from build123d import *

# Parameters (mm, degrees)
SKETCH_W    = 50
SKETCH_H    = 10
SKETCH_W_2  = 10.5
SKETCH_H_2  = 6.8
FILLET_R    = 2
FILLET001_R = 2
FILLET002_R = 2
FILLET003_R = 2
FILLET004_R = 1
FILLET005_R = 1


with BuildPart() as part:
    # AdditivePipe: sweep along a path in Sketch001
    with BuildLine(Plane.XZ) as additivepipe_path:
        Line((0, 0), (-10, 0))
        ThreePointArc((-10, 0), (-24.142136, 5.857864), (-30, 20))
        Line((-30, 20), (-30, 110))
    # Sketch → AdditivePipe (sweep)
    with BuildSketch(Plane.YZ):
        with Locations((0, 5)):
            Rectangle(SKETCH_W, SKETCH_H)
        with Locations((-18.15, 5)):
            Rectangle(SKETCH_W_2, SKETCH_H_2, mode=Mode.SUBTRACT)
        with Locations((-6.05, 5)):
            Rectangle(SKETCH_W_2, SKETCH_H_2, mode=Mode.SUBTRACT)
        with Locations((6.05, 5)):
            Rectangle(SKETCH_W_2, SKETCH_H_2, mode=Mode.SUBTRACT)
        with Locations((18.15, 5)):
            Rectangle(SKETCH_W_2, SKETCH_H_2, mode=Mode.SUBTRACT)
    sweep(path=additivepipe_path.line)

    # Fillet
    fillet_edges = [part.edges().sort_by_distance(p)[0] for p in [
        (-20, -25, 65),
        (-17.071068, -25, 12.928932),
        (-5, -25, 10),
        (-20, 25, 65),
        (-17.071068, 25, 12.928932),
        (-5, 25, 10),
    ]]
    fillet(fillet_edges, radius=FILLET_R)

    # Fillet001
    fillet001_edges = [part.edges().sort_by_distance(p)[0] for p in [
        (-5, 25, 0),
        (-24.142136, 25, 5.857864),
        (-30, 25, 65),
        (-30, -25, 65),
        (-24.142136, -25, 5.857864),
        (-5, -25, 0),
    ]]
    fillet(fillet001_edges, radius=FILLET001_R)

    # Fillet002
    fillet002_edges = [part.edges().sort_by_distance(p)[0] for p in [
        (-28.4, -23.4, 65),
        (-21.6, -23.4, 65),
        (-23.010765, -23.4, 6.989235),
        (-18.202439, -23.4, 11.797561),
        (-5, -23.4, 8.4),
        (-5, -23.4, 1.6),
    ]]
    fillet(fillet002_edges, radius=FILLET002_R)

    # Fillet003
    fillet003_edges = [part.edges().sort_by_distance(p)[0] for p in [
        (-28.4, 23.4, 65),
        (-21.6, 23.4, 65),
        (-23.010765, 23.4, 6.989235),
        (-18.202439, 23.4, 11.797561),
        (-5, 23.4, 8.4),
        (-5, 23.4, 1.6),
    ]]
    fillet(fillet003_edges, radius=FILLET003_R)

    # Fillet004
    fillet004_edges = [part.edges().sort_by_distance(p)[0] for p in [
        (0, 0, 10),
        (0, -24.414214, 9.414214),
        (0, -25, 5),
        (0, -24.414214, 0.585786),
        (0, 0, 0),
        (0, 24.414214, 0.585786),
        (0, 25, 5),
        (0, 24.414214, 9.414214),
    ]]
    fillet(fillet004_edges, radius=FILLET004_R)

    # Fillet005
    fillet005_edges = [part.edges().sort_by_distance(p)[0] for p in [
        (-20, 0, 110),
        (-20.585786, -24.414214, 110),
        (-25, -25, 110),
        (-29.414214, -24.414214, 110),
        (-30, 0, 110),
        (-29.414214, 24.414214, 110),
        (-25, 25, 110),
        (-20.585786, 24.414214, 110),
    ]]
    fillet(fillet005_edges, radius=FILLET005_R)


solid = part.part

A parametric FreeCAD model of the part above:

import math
import FreeCAD as App
import Part
import Sketcher
from FreeCAD import Vector


def edges_at(feature, points):
    """Names of the edges that pass closest to the given points."""
    edges = feature.Shape.Edges
    near = lambda p: min(range(len(edges)), key=lambda i: edges[i].distToShape(Part.Vertex(*p))[0])
    return sorted({f"Edge{near(p) + 1}" for p in points})


def add_polygon(sketch, points):
    """Adds a closed chain of lines whose ends are joined by coincident constraints."""
    first, n = sketch.GeometryCount, len(points)
    for a, b in zip(points, points[1:] + points[:1]):
        sketch.addGeometry(Part.LineSegment(App.Vector(*a, 0), App.Vector(*b, 0)), False)
    for i in range(n):
        sketch.addConstraint(Sketcher.Constraint("Coincident", first + i, 2, first + (i + 1) % n, 1))

doc = App.newDocument("Part")
body = doc.addObject("PartDesign::Body", "Body")

sketch1 = body.newObject("Sketcher::SketchObject", "Sketch")
sketch1.AttachmentSupport = (doc.getObject("YZ_Plane"), [""])
sketch1.MapMode = "FlatFace"
add_polygon(sketch1, [(-25, 10), (-25, 0), (25, 0), (25, 10)])
add_polygon(sketch1, [(-12.9, 1.6), (-23.4, 1.6), (-23.4, 8.4), (-12.9, 8.4)])
add_polygon(sketch1, [(-0.8, 1.6), (-11.3, 1.6), (-11.3, 8.4), (-0.8, 8.4)])
add_polygon(sketch1, [(11.3, 1.6), (0.8, 1.6), (0.8, 8.4), (11.3, 8.4)])
add_polygon(sketch1, [(23.4, 1.6), (12.9, 1.6), (12.9, 8.4), (23.4, 8.4)])
sketch1.addConstraint([
    Sketcher.Constraint("Vertical", 0),
    Sketcher.Constraint("Horizontal", 1),
    Sketcher.Constraint("Vertical", 2),
    Sketcher.Constraint("Horizontal", 3),
    Sketcher.Constraint("Horizontal", 4),
    Sketcher.Constraint("Vertical", 5),
    Sketcher.Constraint("Horizontal", 6),
    Sketcher.Constraint("Vertical", 7),
    Sketcher.Constraint("Horizontal", 8),
    Sketcher.Constraint("Vertical", 9),
    Sketcher.Constraint("Horizontal", 10),
    Sketcher.Constraint("Vertical", 11),
    Sketcher.Constraint("Horizontal", 12),
    Sketcher.Constraint("Vertical", 13),
    Sketcher.Constraint("Horizontal", 14),
    Sketcher.Constraint("Vertical", 15),
    Sketcher.Constraint("Horizontal", 16),
    Sketcher.Constraint("Vertical", 17),
    Sketcher.Constraint("Horizontal", 18),
    Sketcher.Constraint("Vertical", 19),
    Sketcher.Constraint("Symmetric", 0, 2, 1, 2, -1, 1),
    Sketcher.Constraint("Symmetric", 11, 2, 12, 2, -2),
    Sketcher.Constraint("Symmetric", 9, 2, 14, 2, -2),
    Sketcher.Constraint("Symmetric", 7, 2, 16, 2, -2),
    Sketcher.Constraint("Symmetric", 5, 2, 18, 2, -2),
    Sketcher.Constraint("Horizontal", 7, 2, 8, 2),
    Sketcher.Constraint("Horizontal", 6, 2, 9, 2),
    Sketcher.Constraint("Equal", 6, 8),
    Sketcher.Constraint("DistanceX", 1, 1, 1, 2, 50.0),
    Sketcher.Constraint("DistanceY", 0, 2, 0, 1, 10.0),
    Sketcher.Constraint("DistanceX", 4, 2, 4, 1, 10.5),
    Sketcher.Constraint("DistanceY", 5, 1, 5, 2, 6.8),
    Sketcher.Constraint("DistanceX", 4, 2, -1, 1, 23.4),
    Sketcher.Constraint("DistanceY", -1, 1, 4, 2, 1.6),
    Sketcher.Constraint("DistanceX", 8, 2, -1, 1, 11.3),
])

sketch2 = body.newObject("Sketcher::SketchObject", "Sketch001")
sketch2.AttachmentSupport = (doc.getObject("XZ_Plane"), [""])
sketch2.MapMode = "FlatFace"
sketch2.addGeometry([
    Part.LineSegment(Vector(0, 0, 0), Vector(-10, 0, 0)),
    Part.ArcOfCircle(Part.Circle(Vector(-10.000001, 19.999999, 0), Vector(0, 0, 1), 19.999999), math.radians(179.999996), math.radians(270.000004)),
    Part.LineSegment(Vector(-30, 20, 0), Vector(-30, 110, 0)),
], False)
sketch2.addConstraint([
    Sketcher.Constraint("Tangent", 0, 2, 1, 2),
    Sketcher.Constraint("Tangent", 1, 1, 2, 1),
    Sketcher.Constraint("Horizontal", 0),
    Sketcher.Constraint("Vertical", 2),
    Sketcher.Constraint("Coincident", 0, 1, -1, 1),
    Sketcher.Constraint("Radius", 1, 19.999999),
    Sketcher.Constraint("DistanceX", 0, 2, 0, 1, 10.0),
    Sketcher.Constraint("DistanceY", 2, 1, 2, 2, 90.0),
])
doc.recompute()

additivepipe = body.newObject("PartDesign::AdditivePipe", "AdditivePipe")
additivepipe.Profile = sketch1
additivepipe.Spine = (sketch2, ["Edge1", "Edge2", "Edge3"])
doc.recompute()

fillet = body.newObject("PartDesign::Fillet", "Fillet")
fillet.Base = (additivepipe, edges_at(additivepipe, [
    (-20, -25, 65),
    (-17.071, -25, 12.929),
    (-5, -25, 10),
    (-20, 25, 65),
    (-17.071, 25, 12.929),
    (-5, 25, 10),
]))
fillet.Radius = 2
doc.recompute()

fillet2 = body.newObject("PartDesign::Fillet", "Fillet001")
fillet2.Base = (fillet, edges_at(fillet, [
    (-5, 25, 0),
    (-24.142, 25, 5.858),
    (-30, 25, 65),
    (-30, -25, 65),
    (-24.142, -25, 5.858),
    (-5, -25, 0),
]))
fillet2.Radius = 2
doc.recompute()

fillet3 = body.newObject("PartDesign::Fillet", "Fillet002")
fillet3.Base = (fillet2, edges_at(fillet2, [
    (-28.4, -23.4, 65),
    (-21.6, -23.4, 65),
    (-23.011, -23.4, 6.989),
    (-18.202, -23.4, 11.798),
    (-5, -23.4, 8.4),
    (-5, -23.4, 1.6),
]))
fillet3.Radius = 2
doc.recompute()

fillet4 = body.newObject("PartDesign::Fillet", "Fillet003")
fillet4.Base = (fillet3, edges_at(fillet3, [
    (-28.4, 23.4, 65),
    (-21.6, 23.4, 65),
    (-23.011, 23.4, 6.989),
    (-18.202, 23.4, 11.798),
    (-5, 23.4, 8.4),
    (-5, 23.4, 1.6),
]))
fillet4.Radius = 2
doc.recompute()

fillet5 = body.newObject("PartDesign::Fillet", "Fillet004")
fillet5.Base = (fillet4, edges_at(fillet4, [
    (0, 0, 10),
    (0, -24.414, 9.414),
    (0, -25, 5),
    (0, -24.414, 0.586),
    (0, 0, 0),
    (0, 24.414, 0.586),
    (0, 25, 5),
    (0, 24.414, 9.414),
]))
fillet5.Radius = 1
doc.recompute()

fillet6 = body.newObject("PartDesign::Fillet", "Fillet005")
fillet6.Base = (fillet5, edges_at(fillet5, [
    (-20, 0, 110),
    (-20.586, -24.414, 110),
    (-25, -25, 110),
    (-29.414, -24.414, 110),
    (-30, 0, 110),
    (-29.414, 24.414, 110),
    (-25, 25, 110),
    (-20.586, 24.414, 110),
]))
fillet6.Radius = 1

doc.recompute()
